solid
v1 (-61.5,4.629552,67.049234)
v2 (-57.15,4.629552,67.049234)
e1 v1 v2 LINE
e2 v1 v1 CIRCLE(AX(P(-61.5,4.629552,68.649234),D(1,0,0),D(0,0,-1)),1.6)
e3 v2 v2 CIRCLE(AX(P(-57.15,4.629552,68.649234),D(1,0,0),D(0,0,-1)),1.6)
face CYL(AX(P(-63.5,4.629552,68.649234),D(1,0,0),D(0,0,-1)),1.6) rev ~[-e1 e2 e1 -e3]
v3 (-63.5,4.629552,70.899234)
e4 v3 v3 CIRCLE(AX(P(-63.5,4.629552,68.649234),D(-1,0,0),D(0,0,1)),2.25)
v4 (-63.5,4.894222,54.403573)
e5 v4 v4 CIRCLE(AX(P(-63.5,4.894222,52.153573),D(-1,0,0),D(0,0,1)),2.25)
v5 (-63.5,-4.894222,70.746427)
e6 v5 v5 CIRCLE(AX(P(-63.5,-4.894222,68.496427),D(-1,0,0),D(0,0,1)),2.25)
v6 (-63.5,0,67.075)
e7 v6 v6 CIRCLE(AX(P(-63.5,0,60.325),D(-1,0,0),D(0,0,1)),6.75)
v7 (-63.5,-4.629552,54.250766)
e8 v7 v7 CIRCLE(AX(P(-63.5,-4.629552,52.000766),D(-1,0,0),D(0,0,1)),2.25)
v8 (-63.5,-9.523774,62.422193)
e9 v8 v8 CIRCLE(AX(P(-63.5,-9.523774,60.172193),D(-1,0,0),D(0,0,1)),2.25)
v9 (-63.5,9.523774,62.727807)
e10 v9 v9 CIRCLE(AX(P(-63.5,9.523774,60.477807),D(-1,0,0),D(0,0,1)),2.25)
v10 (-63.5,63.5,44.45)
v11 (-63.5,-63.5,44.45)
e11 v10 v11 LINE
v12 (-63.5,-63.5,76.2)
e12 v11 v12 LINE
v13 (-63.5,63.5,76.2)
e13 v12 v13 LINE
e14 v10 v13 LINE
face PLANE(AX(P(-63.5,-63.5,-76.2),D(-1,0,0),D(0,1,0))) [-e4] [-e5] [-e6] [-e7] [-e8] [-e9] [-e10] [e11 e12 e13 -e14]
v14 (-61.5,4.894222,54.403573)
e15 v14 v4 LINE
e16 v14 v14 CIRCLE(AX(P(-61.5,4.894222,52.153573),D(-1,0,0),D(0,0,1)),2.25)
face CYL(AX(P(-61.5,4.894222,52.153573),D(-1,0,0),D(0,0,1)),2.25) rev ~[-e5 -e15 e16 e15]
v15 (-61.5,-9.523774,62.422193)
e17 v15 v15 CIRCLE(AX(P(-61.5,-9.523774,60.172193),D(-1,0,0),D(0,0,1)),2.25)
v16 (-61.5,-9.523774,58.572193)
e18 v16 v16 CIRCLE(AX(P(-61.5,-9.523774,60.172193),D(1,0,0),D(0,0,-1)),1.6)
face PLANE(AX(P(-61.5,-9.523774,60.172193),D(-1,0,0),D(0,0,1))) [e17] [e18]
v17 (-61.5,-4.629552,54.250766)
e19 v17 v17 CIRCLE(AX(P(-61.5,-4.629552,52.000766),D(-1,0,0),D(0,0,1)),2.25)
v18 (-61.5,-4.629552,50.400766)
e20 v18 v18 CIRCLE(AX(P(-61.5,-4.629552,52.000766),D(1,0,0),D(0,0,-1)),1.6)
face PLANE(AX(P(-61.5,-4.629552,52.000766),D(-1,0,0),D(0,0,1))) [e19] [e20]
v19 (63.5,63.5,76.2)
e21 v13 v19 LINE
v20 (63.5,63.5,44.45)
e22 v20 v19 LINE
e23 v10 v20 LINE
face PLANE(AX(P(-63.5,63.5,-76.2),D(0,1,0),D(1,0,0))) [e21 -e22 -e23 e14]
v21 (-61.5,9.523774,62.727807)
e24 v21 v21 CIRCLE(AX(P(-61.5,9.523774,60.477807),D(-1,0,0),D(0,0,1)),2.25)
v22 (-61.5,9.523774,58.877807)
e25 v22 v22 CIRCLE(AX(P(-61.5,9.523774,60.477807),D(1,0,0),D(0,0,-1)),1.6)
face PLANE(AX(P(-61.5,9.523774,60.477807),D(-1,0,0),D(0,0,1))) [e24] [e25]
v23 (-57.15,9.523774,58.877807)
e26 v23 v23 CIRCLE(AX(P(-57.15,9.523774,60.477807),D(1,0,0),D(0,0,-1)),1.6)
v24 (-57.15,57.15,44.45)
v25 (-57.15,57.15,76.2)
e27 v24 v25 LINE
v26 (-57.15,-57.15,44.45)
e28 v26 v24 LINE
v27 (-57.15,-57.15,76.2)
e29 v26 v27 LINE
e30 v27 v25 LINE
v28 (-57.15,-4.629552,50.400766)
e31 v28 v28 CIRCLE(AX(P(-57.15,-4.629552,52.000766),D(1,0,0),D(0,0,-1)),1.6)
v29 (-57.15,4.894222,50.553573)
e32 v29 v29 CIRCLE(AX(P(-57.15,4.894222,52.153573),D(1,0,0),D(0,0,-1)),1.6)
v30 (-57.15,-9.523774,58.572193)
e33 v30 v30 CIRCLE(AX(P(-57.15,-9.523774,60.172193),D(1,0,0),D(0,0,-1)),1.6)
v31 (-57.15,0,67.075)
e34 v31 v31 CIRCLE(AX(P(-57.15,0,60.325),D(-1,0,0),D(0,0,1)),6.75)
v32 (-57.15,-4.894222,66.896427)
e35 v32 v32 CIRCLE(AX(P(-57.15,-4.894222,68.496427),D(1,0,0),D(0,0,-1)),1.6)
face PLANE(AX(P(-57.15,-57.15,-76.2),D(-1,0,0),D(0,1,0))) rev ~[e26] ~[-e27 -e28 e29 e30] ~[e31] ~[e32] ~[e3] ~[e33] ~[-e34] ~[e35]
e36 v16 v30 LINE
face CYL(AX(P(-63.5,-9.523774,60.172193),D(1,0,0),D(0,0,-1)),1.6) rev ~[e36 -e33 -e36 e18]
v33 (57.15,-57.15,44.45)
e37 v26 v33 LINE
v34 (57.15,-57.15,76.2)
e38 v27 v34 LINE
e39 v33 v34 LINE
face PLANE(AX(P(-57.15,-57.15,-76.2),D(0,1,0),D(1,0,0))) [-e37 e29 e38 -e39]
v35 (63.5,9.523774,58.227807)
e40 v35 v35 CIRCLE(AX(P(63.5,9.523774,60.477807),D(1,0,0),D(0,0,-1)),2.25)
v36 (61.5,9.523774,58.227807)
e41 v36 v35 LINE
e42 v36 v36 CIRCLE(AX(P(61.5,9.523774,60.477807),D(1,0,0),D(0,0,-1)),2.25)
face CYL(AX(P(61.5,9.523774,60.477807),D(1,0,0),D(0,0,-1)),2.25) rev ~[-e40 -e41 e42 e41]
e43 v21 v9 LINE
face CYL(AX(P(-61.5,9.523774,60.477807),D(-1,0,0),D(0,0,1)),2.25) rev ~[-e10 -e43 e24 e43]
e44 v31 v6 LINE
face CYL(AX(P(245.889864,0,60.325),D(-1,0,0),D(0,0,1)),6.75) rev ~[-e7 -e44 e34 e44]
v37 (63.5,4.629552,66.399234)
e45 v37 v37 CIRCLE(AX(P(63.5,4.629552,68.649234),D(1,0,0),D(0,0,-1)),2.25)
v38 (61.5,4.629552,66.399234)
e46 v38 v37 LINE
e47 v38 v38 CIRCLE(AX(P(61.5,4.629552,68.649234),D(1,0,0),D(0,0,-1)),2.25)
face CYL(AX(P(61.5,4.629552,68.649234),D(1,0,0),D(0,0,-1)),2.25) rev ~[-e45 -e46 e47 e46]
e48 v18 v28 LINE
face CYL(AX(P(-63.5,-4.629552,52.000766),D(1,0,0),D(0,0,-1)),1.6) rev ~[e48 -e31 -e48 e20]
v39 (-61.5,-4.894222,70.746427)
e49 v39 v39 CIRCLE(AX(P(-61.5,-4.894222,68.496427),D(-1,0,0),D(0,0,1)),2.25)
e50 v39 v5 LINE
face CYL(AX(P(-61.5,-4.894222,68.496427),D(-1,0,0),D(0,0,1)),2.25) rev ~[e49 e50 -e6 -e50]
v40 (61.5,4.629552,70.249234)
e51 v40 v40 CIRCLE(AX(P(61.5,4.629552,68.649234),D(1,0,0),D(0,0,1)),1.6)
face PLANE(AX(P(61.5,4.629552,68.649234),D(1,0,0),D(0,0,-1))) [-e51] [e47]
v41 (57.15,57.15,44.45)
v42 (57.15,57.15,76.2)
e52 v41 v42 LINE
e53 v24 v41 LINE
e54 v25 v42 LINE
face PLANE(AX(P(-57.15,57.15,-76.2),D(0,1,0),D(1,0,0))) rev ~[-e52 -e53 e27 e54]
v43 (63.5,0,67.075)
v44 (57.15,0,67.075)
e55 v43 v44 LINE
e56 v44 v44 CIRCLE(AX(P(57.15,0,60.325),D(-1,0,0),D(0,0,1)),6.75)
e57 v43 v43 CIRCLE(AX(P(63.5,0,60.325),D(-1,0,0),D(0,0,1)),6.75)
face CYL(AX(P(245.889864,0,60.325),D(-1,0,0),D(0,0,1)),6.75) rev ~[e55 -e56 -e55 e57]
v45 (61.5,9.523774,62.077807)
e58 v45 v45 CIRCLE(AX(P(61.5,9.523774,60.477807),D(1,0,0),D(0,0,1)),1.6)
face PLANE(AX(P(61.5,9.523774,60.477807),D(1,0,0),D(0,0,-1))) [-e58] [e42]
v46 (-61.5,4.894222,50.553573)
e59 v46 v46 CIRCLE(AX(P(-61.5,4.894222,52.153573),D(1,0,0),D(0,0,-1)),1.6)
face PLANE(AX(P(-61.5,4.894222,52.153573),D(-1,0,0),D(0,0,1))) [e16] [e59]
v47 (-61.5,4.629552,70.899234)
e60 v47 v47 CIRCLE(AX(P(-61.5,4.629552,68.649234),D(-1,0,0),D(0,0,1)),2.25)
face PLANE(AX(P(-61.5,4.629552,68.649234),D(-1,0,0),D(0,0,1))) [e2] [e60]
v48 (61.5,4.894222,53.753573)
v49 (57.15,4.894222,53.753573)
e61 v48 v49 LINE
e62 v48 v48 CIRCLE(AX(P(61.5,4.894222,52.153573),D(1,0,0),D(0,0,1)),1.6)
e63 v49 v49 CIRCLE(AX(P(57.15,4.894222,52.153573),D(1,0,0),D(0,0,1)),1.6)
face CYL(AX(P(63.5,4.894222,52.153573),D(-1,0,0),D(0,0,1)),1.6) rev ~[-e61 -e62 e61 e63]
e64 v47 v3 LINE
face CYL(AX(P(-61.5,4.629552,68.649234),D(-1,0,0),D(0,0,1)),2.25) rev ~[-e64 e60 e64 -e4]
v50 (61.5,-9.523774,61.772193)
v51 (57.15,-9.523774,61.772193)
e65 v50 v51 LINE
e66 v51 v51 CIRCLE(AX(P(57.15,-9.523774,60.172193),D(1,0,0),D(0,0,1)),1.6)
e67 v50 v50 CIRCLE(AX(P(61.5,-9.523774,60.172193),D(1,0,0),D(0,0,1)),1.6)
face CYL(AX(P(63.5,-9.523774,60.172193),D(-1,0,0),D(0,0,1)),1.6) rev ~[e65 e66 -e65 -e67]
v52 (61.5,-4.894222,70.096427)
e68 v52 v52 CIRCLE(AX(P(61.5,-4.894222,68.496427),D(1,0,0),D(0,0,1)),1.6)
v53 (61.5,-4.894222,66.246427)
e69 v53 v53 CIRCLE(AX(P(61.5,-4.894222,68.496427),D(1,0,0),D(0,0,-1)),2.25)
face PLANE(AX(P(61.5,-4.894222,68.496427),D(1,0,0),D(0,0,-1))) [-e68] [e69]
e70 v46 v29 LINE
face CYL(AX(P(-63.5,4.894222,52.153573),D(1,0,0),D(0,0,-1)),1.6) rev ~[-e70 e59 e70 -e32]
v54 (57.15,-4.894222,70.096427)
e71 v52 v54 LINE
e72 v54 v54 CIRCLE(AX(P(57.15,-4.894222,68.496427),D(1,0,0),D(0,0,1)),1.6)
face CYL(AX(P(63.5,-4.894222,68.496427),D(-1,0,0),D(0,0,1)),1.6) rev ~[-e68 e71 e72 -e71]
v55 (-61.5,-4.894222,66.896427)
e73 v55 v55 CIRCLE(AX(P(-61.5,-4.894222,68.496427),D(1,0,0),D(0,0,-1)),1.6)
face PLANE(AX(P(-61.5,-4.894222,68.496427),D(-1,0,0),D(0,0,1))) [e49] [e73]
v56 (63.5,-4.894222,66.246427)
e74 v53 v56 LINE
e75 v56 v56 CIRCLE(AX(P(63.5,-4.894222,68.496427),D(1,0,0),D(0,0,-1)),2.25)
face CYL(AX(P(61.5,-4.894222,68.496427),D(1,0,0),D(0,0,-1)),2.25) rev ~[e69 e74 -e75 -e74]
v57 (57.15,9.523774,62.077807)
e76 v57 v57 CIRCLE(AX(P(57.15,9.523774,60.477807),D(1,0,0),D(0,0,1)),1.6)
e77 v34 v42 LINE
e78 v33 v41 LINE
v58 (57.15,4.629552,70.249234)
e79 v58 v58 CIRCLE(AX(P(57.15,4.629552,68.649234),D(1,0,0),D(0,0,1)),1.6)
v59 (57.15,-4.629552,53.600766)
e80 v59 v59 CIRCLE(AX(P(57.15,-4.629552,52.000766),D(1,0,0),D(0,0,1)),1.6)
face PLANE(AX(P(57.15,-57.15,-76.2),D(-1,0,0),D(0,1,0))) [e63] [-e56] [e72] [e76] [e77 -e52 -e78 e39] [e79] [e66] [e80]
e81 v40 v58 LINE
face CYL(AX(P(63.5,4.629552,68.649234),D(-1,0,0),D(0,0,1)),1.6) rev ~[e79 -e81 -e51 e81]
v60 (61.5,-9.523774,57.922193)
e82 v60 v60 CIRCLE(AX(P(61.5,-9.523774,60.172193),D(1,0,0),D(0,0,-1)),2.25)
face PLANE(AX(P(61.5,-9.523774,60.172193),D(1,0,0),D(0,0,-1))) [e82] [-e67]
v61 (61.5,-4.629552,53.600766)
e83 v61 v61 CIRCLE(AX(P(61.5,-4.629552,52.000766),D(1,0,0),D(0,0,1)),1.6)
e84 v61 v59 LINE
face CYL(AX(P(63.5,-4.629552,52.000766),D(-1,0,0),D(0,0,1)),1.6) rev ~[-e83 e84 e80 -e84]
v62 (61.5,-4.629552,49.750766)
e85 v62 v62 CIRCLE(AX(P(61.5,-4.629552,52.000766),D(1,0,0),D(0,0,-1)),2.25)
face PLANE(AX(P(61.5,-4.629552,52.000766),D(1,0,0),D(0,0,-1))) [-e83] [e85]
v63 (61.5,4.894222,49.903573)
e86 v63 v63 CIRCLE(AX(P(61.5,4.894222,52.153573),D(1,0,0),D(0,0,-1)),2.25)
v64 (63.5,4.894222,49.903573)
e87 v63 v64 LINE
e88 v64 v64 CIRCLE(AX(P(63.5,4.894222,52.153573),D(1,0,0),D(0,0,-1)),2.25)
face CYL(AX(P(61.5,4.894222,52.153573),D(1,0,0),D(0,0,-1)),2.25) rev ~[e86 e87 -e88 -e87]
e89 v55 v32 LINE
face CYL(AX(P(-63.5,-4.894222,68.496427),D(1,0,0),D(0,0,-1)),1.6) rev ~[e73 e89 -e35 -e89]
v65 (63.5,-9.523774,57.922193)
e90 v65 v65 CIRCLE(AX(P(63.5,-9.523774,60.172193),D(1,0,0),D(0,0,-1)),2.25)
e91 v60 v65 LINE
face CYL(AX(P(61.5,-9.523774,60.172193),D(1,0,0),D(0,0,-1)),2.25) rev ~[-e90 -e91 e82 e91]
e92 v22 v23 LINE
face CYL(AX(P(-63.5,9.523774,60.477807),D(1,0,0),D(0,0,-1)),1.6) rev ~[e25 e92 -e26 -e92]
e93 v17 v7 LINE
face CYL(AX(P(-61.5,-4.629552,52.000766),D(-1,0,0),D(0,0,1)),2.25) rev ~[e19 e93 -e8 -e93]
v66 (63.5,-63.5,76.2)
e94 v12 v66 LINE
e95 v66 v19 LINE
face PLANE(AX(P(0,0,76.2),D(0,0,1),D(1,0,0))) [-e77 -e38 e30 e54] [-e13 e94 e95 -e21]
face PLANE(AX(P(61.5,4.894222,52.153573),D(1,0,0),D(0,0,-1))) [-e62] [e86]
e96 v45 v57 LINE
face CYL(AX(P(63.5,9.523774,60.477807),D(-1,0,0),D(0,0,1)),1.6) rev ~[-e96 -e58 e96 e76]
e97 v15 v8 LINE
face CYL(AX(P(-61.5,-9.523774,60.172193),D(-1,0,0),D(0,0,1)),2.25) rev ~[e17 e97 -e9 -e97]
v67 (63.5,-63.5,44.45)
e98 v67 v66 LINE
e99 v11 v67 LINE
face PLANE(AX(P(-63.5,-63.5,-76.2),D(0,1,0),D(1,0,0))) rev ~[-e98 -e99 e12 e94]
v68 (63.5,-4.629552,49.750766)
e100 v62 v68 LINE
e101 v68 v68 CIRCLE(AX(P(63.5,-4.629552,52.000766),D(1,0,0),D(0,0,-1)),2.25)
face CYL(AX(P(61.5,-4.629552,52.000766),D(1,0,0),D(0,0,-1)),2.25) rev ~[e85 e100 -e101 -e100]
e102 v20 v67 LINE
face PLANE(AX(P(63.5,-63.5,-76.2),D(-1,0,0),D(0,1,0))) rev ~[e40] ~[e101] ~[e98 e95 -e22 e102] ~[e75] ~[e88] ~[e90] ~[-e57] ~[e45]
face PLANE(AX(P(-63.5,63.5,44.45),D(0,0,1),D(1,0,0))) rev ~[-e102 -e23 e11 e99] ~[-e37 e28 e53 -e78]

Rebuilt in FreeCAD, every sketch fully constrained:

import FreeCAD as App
import Part
import Sketcher
from FreeCAD import Vector
Q = App.Units.Quantity


def add_polygon(sketch, points):
    """Adds a closed chain of lines whose ends are joined by coincident constraints."""
    first, n = sketch.GeometryCount, len(points)
    for a, b in zip(points, points[1:] + points[:1]):
        sketch.addGeometry(Part.LineSegment(App.Vector(*a, 0), App.Vector(*b, 0)), False)
    for i in range(n):
        sketch.addConstraint(Sketcher.Constraint("Coincident", first + i, 2, first + (i + 1) % n, 1))

doc = App.newDocument("Part")
body = doc.addObject("PartDesign::Body", "Body")

# Sketch on XY plane
sketch1 = body.newObject("Sketcher::SketchObject", "Sketch")
sketch1.AttachmentSupport = (doc.getObject("XY_Plane"), [""])
sketch1.MapMode = "FlatFace"
add_polygon(sketch1, [(-64, 64), (-64, -64), (64, -64), (64, 64)])  # lines 0-3
add_polygon(sketch1, [(57, -57), (-57, -57), (-57, 57), (57, 57)])  # lines 4-7
sketch1.addConstraint([
    Sketcher.Constraint("Vertical", 0),
    Sketcher.Constraint("Horizontal", 1),
    Sketcher.Constraint("Vertical", 2),
    Sketcher.Constraint("Horizontal", 3),
    Sketcher.Constraint("Horizontal", 4),
    Sketcher.Constraint("Vertical", 5),
    Sketcher.Constraint("Horizontal", 6),
    Sketcher.Constraint("Vertical", 7),
    Sketcher.Constraint("Symmetric", 0, 2, 2, 2, -1, 1),
    Sketcher.Constraint("Symmetric", 4, 2, 6, 2, -1, 1),
    Sketcher.Constraint("Equal", 3, 0),
    Sketcher.Constraint("Equal", 6, 5),
    Sketcher.Constraint("DistanceX", 1, 1, 1, 2, Q("5 in")),
    Sketcher.Constraint("DistanceX", 4, 2, 4, 1, Q("4.5 in")),
])
pad1 = body.newObject("PartDesign::Pad", "Pad")
pad1.Profile = sketch1
pad1.Type = "TwoLengths"
pad1.Length = Q("3 in")
pad1.Length2 = Q("3 in")

# Sketch on XZ plane
sketch2 = body.newObject("Sketcher::SketchObject", "Sketch001")
sketch2.AttachmentSupport = (doc.getObject("XZ_Plane"), [""])
sketch2.MapMode = "FlatFace"
sketch2.AttachmentOffset = App.Placement(Vector(0, 0, -2.5 * 25.4), App.Rotation())
add_polygon(sketch2, [(-64, -76), (-64, 44), (64, 44), (64, -76)])  # lines 0-3
sketch2.addConstraint([
    Sketcher.Constraint("Vertical", 0),
    Sketcher.Constraint("Horizontal", 1),
    Sketcher.Constraint("Vertical", 2),
    Sketcher.Constraint("Horizontal", 3),
    Sketcher.Constraint("DistanceX", 1, 1, 1, 2, Q("5 in")),
    Sketcher.Constraint("DistanceY", 2, 2, -1, 1, Q("3 in")),
    Sketcher.Constraint("DistanceY", 0, 1, 0, 2, Q("4.75 in")),
    Sketcher.Constraint("DistanceX", 0, 2, -1, 1, Q("2.5 in")),
])
pocket1 = body.newObject("PartDesign::Pocket", "Pocket")
pocket1.Profile = sketch2
pocket1.Type = "ThroughAll"
pocket1.Reversed = True

# Sketch on YZ plane
sketch3 = body.newObject("Sketcher::SketchObject", "Sketch002")
sketch3.AttachmentSupport = (doc.getObject("YZ_Plane"), [""])
sketch3.MapMode = "FlatFace"
sketch3.AttachmentOffset = App.Placement(Vector(0, 0, 2.5 * 25.4), App.Rotation())
sketch3.addGeometry(Part.Circle(Vector(0, 60, 0), Vector(0, 0, 1), 7), False)
sketch3.addConstraint([
    Sketcher.Constraint("PointOnObject", 0, 3, -2),
    Sketcher.Constraint("Diameter", 0, Q("13.5 mm")),
    Sketcher.Constraint("DistanceY", -1, 1, 0, 3, Q("2.375 in")),
])
doc.recompute()
hole = body.newObject("PartDesign::Hole", "Hole")
hole.Profile = sketch3
hole.ThreadType = "None"
hole.Diameter = 13.5
hole.DepthType = "ThroughAll"

# Sketch on YZ plane
sketch4 = body.newObject("Sketcher::SketchObject", "Sketch003")
sketch4.AttachmentSupport = (doc.getObject("YZ_Plane"), [""])
sketch4.MapMode = "FlatFace"
sketch4.AttachmentOffset = App.Placement(Vector(0, 0, 2.5 * 25.4), App.Rotation())
sketch4.addGeometry([
    Part.Circle(Vector(-4.9, 68.5, 0), Vector(0, 0, 1), 1.6),  # 0
    Part.Circle(Vector(4.6, 68.6, 0), Vector(0, 0, 1), 1.6),  # 1
    Part.Circle(Vector(9.5, 60.5, 0), Vector(0, 0, 1), 1.6),  # 2
    Part.Circle(Vector(4.9, 52.2, 0), Vector(0, 0, 1), 1.6),  # 3
    Part.Circle(Vector(-4.6, 52, 0), Vector(0, 0, 1), 1.6),  # 4
    Part.Circle(Vector(-9.5, 60.2, 0), Vector(0, 0, 1), 1.6),  # 5
], False)
sketch4.addConstraint([
    Sketcher.Constraint("Equal", 0, 1),
    Sketcher.Constraint("Equal", 1, 2),
    Sketcher.Constraint("Equal", 2, 3),
    Sketcher.Constraint("Equal", 3, 4),
    Sketcher.Constraint("Equal", 4, 5),
    Sketcher.Constraint("Diameter", 0, Q("3.2 mm")),
    Sketcher.Constraint("DistanceX", 0, 3, -1, 1, Q("4.894222 mm")),
    Sketcher.Constraint("DistanceX", -1, 1, 3, 3, Q("4.894222 mm")),
    Sketcher.Constraint("DistanceX", 1, 3, 2, 3, Q("4.894222 mm")),
    Sketcher.Constraint("DistanceY", 2, 3, 0, 3, Q("8.01862 mm")),
    Sketcher.Constraint("DistanceX", 1, 3, 3, 3, Q("0.26467 mm")),
    Sketcher.Constraint("DistanceY", 3, 3, 1, 3, Q("16.495661 mm")),
    Sketcher.Constraint("DistanceY", 4, 3, 2, 3, Q("8.477041 mm")),
    Sketcher.Constraint("DistanceX", 0, 3, 4, 3, Q("0.26467 mm")),
    Sketcher.Constraint("DistanceX", 5, 3, 4, 3, Q("4.894222 mm")),
    Sketcher.Constraint("DistanceY", 5, 3, 1, 3, Q("8.477041 mm")),
    Sketcher.Constraint("DistanceY", -1, 1, 0, 3, Q("68.496427 mm")),
    Sketcher.Constraint("DistanceY", -1, 1, 1, 3, Q("68.649234 mm")),
])
doc.recompute()
hole2 = body.newObject("PartDesign::Hole", "Hole001")
hole2.Profile = sketch4
hole2.ThreadType = "None"
hole2.Diameter = 3.2
hole2.DepthType = "Dimension"
hole2.Depth = Q("0.25 in")
hole2.DrillPoint = "Flat"
hole2.HoleCutType = "Counterbore"
hole2.HoleCutDiameter = 4.5
hole2.HoleCutDepth = 2

# Sketch on YZ plane
sketch5 = body.newObject("Sketcher::SketchObject", "Sketch004")
sketch5.AttachmentSupport = (doc.getObject("YZ_Plane"), [""])
sketch5.MapMode = "FlatFace"
sketch5.AttachmentOffset = App.Placement(Vector(0, 0, -2.5 * 25.4), App.Rotation())
sketch5.addGeometry([
    Part.Circle(Vector(4.6, 68.6, 0), Vector(0, 0, 1), 1.6),  # 0
    Part.Circle(Vector(9.5, 60.5, 0), Vector(0, 0, 1), 1.6),  # 1
    Part.Circle(Vector(-4.9, 68.5, 0), Vector(0, 0, 1), 1.6),  # 2
    Part.Circle(Vector(4.9, 52.2, 0), Vector(0, 0, 1), 1.6),  # 3
    Part.Circle(Vector(-4.6, 52, 0), Vector(0, 0, 1), 1.6),  # 4
    Part.Circle(Vector(-9.5, 60.2, 0), Vector(0, 0, 1), 1.6),  # 5
], False)
sketch5.addConstraint([
    Sketcher.Constraint("Equal", 0, 1),
    Sketcher.Constraint("Equal", 1, 2),
    Sketcher.Constraint("Equal", 2, 3),
    Sketcher.Constraint("Equal", 3, 4),
    Sketcher.Constraint("Equal", 4, 5),
    Sketcher.Constraint("Diameter", 0, Q("3.2 mm")),
    Sketcher.Constraint("DistanceX", 2, 3, -1, 1, Q("4.894222 mm")),
    Sketcher.Constraint("DistanceX", -1, 1, 3, 3, Q("4.894222 mm")),
    Sketcher.Constraint("DistanceX", 0, 3, 1, 3, Q("4.894222 mm")),
    Sketcher.Constraint("DistanceY", 1, 3, 2, 3, Q("8.01862 mm")),
    Sketcher.Constraint("DistanceX", 0, 3, 3, 3, Q("0.26467 mm")),
    Sketcher.Constraint("DistanceY", 3, 3, 0, 3, Q("16.495661 mm")),
    Sketcher.Constraint("DistanceY", 4, 3, 1, 3, Q("8.477041 mm")),
    Sketcher.Constraint("DistanceX", 2, 3, 4, 3, Q("0.26467 mm")),
    Sketcher.Constraint("DistanceX", 5, 3, 4, 3, Q("4.894222 mm")),
    Sketcher.Constraint("DistanceY", 5, 3, 0, 3, Q("8.477041 mm")),
    Sketcher.Constraint("DistanceY", -1, 1, 0, 3, Q("68.649234 mm")),
    Sketcher.Constraint("DistanceY", -1, 1, 1, 3, Q("60.477807 mm")),
])
doc.recompute()
hole3 = body.newObject("PartDesign::Hole", "Hole002")
hole3.Profile = sketch5
hole3.ThreadType = "None"
hole3.Diameter = 3.2
hole3.DepthType = "ThroughAll"
hole3.HoleCutType = "Counterbore"
hole3.HoleCutDiameter = 4.5
hole3.HoleCutDepth = 2
hole3.Reversed = True

doc.recompute()
